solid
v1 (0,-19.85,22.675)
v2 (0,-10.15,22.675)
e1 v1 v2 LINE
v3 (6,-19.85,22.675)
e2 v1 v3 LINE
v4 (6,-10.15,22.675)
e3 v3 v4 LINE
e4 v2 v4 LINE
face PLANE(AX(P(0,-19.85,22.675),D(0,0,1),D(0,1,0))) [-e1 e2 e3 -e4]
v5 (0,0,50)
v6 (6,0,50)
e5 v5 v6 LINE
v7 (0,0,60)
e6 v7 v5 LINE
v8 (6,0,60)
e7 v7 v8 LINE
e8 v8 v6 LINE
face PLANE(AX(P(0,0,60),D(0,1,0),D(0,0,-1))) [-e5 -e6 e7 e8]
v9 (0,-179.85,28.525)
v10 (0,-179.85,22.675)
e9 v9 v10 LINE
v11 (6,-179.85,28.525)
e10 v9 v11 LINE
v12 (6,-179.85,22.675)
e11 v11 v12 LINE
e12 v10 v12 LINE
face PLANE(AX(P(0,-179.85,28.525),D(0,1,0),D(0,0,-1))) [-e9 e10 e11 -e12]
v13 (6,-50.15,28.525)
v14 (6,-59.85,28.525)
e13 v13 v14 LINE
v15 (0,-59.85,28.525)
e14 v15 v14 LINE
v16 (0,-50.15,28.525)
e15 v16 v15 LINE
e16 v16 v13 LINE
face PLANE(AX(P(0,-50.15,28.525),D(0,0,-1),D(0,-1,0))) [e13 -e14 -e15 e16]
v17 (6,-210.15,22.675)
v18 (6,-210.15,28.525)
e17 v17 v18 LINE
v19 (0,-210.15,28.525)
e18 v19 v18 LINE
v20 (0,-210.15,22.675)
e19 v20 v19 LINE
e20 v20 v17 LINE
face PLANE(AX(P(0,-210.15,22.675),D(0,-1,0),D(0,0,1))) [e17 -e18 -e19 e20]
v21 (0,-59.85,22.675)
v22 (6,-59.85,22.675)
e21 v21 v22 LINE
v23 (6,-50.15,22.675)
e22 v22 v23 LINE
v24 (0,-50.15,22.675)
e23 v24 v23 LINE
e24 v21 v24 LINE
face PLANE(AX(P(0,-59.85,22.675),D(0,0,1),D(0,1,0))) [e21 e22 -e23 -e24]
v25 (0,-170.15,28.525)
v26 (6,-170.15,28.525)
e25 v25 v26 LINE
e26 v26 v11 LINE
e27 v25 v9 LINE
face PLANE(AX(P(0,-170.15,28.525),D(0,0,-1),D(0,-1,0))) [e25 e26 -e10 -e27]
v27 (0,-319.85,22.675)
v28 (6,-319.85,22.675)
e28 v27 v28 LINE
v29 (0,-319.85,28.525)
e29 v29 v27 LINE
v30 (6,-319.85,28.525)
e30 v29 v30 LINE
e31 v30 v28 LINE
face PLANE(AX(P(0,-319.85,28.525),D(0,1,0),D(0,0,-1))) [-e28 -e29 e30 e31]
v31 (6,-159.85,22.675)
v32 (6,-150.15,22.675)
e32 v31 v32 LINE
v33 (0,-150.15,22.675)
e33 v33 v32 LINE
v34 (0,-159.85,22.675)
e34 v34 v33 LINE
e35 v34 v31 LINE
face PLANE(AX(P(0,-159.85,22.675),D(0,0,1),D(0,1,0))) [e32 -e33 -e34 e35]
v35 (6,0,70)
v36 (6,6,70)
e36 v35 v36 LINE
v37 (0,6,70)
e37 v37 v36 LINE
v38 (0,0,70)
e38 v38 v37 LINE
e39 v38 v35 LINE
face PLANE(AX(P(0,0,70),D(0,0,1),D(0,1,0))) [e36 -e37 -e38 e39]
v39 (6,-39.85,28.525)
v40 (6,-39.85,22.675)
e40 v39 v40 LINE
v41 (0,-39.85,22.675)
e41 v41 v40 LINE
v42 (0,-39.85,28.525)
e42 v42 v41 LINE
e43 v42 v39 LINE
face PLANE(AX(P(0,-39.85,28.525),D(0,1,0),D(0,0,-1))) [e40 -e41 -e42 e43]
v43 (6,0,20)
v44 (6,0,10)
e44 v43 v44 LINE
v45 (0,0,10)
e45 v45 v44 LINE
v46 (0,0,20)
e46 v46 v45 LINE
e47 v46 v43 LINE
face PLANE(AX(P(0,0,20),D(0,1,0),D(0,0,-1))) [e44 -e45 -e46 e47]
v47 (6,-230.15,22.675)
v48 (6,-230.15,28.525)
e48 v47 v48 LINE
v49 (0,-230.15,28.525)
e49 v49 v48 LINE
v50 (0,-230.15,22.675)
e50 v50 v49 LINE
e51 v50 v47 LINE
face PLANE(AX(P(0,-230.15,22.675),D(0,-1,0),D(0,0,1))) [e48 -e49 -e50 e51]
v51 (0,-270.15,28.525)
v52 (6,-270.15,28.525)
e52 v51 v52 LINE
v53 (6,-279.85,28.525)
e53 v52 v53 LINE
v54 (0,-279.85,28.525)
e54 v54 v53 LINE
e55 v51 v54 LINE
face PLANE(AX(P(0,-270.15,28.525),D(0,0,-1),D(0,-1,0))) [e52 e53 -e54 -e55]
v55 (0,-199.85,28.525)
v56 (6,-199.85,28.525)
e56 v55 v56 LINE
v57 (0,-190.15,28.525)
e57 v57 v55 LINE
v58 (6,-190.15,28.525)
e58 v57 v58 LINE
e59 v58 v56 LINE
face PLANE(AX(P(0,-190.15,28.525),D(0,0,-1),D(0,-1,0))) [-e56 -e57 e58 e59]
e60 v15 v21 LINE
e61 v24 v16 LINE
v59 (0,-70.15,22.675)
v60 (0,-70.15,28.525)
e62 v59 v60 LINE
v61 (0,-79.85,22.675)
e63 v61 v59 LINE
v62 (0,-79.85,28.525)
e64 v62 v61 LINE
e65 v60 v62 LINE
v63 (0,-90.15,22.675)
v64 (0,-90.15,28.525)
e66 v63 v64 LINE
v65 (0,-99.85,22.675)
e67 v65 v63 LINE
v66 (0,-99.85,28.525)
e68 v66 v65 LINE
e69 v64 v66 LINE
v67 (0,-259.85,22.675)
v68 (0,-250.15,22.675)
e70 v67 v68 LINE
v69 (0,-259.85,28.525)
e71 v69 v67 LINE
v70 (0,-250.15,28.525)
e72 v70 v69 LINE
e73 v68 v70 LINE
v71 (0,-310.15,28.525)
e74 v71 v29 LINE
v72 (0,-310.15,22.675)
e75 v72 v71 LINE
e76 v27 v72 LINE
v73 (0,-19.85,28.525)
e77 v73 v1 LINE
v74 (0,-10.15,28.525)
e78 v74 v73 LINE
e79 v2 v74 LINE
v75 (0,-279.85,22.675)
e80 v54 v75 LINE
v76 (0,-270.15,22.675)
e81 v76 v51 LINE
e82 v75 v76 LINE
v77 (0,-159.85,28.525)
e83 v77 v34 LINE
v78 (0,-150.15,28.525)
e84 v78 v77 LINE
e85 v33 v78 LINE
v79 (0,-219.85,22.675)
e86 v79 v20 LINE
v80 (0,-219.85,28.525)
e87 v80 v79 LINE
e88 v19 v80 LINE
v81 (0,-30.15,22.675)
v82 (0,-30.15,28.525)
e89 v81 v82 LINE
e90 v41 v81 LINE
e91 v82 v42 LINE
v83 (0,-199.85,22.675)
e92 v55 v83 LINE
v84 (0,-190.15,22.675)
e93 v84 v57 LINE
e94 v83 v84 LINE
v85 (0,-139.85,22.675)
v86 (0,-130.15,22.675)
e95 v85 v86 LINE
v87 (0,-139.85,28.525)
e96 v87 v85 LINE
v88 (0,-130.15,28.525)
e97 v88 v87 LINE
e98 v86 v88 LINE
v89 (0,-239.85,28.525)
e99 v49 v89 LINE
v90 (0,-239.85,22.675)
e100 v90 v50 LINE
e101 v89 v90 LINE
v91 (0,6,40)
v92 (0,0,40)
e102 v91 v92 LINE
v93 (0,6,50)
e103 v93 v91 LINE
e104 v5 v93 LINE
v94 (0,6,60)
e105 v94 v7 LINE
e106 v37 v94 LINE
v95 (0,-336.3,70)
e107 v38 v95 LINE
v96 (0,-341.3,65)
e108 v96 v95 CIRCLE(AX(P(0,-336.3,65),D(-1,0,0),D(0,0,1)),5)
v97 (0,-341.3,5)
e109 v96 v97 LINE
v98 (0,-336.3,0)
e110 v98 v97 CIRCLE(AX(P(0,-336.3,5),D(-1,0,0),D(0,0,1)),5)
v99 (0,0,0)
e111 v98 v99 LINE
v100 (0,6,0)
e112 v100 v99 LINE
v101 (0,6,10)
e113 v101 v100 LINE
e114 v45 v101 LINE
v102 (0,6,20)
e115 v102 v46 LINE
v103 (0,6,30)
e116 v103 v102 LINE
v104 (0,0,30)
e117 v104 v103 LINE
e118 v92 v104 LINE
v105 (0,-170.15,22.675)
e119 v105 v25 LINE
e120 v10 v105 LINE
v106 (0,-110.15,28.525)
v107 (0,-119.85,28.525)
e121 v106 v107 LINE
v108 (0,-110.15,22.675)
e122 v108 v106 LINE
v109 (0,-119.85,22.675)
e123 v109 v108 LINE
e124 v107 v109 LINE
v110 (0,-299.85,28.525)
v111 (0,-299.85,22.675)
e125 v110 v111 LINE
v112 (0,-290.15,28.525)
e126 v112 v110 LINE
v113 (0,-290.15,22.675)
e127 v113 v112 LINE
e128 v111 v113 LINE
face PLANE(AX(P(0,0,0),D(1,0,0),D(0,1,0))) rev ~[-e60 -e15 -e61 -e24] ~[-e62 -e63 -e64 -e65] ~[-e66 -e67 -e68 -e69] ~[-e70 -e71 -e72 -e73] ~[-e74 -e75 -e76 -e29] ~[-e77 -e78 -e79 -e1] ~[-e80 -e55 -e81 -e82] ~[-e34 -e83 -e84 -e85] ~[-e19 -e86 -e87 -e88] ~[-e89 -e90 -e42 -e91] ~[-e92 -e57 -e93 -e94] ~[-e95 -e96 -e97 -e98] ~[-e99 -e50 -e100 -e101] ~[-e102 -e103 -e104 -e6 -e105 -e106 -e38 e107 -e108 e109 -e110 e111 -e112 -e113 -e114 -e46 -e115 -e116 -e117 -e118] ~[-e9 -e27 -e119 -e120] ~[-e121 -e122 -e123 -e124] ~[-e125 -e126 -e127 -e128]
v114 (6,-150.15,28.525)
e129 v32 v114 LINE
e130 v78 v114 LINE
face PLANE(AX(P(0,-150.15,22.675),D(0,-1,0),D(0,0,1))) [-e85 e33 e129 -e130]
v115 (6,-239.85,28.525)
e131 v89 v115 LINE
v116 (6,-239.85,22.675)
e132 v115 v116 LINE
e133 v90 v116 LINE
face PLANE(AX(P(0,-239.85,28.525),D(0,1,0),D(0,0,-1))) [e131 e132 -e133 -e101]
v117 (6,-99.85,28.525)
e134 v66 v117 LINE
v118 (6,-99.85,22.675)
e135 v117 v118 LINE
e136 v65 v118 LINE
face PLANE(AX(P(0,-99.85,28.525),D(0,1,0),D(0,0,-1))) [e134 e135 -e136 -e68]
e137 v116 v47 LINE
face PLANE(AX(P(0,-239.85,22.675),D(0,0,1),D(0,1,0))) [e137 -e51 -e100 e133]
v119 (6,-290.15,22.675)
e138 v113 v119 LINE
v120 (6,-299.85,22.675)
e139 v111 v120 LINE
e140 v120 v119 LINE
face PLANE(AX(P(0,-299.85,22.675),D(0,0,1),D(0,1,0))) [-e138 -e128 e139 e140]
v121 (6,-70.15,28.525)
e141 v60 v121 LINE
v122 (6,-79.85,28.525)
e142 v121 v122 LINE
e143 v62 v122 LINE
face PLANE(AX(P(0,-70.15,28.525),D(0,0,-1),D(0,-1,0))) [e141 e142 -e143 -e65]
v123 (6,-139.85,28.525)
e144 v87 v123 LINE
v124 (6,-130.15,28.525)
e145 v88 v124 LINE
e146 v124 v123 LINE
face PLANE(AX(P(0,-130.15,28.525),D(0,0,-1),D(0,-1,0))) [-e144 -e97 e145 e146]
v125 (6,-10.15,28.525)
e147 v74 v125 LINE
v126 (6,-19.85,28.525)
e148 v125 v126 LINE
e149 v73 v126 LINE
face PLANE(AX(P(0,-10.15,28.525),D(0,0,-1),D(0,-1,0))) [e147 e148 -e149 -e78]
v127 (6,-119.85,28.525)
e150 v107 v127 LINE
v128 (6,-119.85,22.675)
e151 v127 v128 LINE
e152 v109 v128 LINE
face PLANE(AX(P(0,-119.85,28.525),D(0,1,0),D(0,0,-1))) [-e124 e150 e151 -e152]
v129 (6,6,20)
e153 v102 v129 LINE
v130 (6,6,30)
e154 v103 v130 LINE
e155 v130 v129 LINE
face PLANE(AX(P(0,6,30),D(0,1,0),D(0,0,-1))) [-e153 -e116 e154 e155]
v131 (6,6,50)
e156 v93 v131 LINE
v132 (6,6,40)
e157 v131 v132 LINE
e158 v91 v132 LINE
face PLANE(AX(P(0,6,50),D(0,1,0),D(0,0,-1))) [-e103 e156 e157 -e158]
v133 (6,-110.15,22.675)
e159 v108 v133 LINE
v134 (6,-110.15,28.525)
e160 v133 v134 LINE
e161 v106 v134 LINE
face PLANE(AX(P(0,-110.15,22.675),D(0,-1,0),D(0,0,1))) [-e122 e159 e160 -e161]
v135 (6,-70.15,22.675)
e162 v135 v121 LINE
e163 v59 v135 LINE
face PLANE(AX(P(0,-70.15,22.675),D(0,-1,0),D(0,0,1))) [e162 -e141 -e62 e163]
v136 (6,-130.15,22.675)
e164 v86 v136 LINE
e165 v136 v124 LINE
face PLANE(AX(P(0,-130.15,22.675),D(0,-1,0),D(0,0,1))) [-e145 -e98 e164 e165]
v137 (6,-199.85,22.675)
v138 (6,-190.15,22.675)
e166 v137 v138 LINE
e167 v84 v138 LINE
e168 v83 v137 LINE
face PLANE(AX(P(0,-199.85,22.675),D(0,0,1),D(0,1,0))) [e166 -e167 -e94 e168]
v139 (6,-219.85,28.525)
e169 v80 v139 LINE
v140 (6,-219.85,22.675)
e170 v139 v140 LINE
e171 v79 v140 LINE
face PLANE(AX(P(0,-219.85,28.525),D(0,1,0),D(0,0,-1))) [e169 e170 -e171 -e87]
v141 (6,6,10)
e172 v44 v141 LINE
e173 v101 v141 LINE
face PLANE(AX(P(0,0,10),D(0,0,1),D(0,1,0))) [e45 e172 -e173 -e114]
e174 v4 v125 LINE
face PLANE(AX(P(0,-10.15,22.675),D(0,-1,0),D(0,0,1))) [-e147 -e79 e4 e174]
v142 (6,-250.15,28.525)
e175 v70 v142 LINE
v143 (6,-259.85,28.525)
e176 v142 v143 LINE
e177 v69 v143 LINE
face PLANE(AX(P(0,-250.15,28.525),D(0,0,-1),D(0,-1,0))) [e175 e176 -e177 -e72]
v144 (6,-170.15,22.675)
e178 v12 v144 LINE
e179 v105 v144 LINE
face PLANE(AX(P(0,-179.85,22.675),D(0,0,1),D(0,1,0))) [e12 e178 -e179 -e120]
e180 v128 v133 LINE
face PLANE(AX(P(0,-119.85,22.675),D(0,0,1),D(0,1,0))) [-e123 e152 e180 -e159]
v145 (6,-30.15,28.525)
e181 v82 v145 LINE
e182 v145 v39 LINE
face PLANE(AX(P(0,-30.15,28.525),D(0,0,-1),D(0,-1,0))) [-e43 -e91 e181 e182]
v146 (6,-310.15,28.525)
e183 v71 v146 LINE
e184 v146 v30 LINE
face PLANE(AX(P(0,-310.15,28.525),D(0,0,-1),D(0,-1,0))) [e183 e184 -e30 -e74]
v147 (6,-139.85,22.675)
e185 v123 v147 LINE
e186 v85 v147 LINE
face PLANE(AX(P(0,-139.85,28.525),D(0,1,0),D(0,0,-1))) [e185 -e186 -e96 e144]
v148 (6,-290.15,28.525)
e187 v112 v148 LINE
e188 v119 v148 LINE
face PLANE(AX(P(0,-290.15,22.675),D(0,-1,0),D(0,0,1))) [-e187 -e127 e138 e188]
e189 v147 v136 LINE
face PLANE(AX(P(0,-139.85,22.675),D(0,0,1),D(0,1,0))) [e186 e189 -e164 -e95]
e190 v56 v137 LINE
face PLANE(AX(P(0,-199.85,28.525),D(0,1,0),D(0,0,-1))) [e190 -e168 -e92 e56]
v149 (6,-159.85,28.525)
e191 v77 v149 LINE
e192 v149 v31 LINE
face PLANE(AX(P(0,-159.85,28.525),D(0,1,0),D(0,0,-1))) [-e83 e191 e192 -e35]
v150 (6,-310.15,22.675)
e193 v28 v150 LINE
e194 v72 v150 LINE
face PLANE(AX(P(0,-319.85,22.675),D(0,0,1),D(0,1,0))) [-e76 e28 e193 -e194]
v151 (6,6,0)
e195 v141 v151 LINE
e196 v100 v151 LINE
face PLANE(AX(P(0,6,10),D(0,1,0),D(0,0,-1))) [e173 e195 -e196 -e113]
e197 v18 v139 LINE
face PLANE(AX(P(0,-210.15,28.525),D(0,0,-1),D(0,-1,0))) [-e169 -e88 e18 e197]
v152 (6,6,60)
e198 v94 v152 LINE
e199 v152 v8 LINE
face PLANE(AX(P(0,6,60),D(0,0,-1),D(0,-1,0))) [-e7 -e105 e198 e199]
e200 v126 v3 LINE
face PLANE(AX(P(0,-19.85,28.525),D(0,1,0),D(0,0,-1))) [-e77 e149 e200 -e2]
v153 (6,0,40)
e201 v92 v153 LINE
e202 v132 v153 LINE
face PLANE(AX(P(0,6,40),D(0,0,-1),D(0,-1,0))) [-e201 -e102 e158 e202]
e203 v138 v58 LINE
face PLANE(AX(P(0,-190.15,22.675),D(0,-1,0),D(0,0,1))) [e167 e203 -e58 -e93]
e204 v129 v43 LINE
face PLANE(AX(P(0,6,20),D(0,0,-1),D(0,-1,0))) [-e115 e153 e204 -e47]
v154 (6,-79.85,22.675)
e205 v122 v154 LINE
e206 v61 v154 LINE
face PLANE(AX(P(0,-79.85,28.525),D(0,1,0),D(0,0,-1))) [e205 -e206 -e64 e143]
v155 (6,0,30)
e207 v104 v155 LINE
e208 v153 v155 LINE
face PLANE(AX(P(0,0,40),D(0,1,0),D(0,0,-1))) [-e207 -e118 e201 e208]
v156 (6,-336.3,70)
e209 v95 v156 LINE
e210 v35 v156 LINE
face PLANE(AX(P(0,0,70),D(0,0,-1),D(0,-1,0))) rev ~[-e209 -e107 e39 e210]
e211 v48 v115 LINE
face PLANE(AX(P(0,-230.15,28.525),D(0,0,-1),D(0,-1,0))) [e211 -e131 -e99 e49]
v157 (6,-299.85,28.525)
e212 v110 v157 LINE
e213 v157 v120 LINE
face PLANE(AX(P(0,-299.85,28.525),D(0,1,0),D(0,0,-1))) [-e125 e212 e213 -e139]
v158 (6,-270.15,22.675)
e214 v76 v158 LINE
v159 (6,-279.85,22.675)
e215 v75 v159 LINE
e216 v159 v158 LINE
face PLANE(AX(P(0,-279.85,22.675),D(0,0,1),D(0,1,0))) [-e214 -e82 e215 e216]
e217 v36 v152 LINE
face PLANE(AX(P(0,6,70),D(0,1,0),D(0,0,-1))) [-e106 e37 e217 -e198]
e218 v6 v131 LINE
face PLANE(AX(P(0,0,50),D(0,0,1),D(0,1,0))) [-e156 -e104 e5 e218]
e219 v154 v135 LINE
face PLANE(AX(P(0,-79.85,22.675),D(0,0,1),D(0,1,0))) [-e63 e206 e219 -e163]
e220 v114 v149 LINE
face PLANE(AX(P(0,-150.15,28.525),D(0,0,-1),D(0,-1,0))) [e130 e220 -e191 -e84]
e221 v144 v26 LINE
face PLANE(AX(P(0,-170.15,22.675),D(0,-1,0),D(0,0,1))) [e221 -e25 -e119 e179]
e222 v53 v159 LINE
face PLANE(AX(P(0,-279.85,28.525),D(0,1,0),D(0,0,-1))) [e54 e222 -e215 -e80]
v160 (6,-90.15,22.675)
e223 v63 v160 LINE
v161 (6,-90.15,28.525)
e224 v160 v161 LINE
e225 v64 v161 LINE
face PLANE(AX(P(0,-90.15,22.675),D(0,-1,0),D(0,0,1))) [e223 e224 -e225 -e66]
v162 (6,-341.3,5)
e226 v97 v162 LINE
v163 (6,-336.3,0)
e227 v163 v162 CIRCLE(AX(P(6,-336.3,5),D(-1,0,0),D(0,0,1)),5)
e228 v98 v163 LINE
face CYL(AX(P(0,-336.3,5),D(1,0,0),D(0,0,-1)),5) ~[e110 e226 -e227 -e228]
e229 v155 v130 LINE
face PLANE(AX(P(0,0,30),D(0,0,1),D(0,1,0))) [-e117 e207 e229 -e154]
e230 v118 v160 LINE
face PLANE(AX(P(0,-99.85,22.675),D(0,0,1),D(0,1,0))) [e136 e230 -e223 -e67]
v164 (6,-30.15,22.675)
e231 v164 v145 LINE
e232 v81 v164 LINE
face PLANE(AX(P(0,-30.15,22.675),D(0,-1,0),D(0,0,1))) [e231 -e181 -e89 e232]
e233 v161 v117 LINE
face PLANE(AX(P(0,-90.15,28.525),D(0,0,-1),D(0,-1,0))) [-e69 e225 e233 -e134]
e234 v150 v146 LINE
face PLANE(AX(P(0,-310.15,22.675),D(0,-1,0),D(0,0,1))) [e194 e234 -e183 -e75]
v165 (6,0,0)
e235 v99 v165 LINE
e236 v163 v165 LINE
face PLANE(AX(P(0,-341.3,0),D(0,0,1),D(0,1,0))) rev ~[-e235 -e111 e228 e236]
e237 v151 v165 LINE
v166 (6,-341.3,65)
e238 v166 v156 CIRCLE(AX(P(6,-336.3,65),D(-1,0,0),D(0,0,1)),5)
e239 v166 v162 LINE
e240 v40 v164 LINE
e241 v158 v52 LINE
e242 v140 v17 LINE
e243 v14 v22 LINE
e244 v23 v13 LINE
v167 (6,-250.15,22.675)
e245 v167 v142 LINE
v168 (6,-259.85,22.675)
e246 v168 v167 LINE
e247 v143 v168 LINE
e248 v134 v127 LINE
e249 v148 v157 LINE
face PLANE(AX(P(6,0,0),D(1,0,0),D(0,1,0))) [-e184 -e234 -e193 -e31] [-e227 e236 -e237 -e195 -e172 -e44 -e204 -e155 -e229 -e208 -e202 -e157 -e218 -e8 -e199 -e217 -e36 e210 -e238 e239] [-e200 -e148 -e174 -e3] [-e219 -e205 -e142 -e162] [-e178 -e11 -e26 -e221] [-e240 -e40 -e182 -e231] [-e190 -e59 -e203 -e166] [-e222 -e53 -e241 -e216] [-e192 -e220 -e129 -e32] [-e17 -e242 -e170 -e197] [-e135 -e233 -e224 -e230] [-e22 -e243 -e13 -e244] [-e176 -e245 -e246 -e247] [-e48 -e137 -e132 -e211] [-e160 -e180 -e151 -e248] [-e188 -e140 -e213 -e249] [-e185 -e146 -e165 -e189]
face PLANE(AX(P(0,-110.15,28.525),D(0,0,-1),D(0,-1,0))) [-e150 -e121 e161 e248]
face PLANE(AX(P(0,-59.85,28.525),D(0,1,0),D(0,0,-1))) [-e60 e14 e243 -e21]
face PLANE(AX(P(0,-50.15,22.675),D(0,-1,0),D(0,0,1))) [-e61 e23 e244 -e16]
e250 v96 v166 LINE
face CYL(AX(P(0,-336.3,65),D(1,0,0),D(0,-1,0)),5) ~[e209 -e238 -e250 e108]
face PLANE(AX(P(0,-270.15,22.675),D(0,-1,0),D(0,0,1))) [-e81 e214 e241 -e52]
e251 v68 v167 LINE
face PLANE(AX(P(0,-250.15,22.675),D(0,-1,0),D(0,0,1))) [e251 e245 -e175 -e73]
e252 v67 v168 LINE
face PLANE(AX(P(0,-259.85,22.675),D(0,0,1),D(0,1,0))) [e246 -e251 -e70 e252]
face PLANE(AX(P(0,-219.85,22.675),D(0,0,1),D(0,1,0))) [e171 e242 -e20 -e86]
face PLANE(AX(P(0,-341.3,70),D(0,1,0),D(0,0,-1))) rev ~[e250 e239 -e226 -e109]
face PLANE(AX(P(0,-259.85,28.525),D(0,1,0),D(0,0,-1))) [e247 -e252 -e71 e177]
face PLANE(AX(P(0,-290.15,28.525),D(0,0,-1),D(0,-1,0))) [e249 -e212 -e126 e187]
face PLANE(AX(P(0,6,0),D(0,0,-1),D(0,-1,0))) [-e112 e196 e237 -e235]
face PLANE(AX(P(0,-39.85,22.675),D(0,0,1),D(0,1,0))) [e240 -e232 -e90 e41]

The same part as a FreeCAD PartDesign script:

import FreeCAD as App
import Part
import Sketcher
from FreeCAD import Vector


def edges_at(feature, points):
    """Names of the edges that pass closest to the given points."""
    edges = feature.Shape.Edges
    near = lambda p: min(range(len(edges)), key=lambda i: edges[i].distToShape(Part.Vertex(*p))[0])
    return sorted({f"Edge{near(p) + 1}" for p in points})

doc = App.newDocument("Part")
body = doc.addObject("PartDesign::Body", "Body")

sketch1 = body.newObject("Sketcher::SketchObject", "Sketch")
sketch1.AttachmentSupport = (doc.getObject("YZ_Plane"), [""])
sketch1.MapMode = "FlatFace"
sketch1.addGeometry(Part.LineSegment(Vector(6, 70, 0), Vector(-341.3, 70, 0)), False)
sketch1.addGeometry(Part.LineSegment(Vector(-341.3, 70, 0), Vector(-341.3, 0, 0)), False)
sketch1.addGeometry(Part.LineSegment(Vector(-341.3, 0, 0), Vector(6, 0, 0)), False)
sketch1.addGeometry(Part.LineSegment(Vector(6, 0, 0), Vector(6, 10, 0)), False)
sketch1.addGeometry(Part.LineSegment(Vector(6, 10, 0), Vector(0, 10, 0)), False)
sketch1.addGeometry(Part.LineSegment(Vector(0, 10, 0), Vector(0, 20, 0)), False)
sketch1.addGeometry(Part.LineSegment(Vector(0, 20, 0), Vector(6, 20, 0)), False)
sketch1.addGeometry(Part.LineSegment(Vector(6, 20, 0), Vector(6, 30, 0)), False)
sketch1.addGeometry(Part.LineSegment(Vector(6, 30, 0), Vector(0, 30, 0)), False)
sketch1.addGeometry(Part.LineSegment(Vector(0, 30, 0), Vector(0, 40, 0)), False)
sketch1.addGeometry(Part.LineSegment(Vector(0, 40, 0), Vector(6, 40, 0)), False)
sketch1.addGeometry(Part.LineSegment(Vector(6, 40, 0), Vector(6, 50, 0)), False)
sketch1.addGeometry(Part.LineSegment(Vector(6, 50, 0), Vector(0, 50, 0)), False)
sketch1.addGeometry(Part.LineSegment(Vector(0, 50, 0), Vector(0, 60, 0)), False)
sketch1.addGeometry(Part.LineSegment(Vector(0, 60, 0), Vector(6, 60, 0)), False)
sketch1.addGeometry(Part.LineSegment(Vector(6, 60, 0), Vector(6, 70, 0)), False)
sketch1.addGeometry(Part.LineSegment(Vector(-310.15, 28.525, 0), Vector(-310.15, 22.675, 0)), False)
sketch1.addGeometry(Part.LineSegment(Vector(-310.15, 22.675, 0), Vector(-319.85, 22.675, 0)), False)
sketch1.addGeometry(Part.LineSegment(Vector(-319.85, 22.675, 0), Vector(-319.85, 28.525, 0)), False)
sketch1.addGeometry(Part.LineSegment(Vector(-319.85, 28.525, 0), Vector(-310.15, 28.525, 0)), False)
sketch1.addGeometry(Part.LineSegment(Vector(-290.15, 28.525, 0), Vector(-290.15, 22.675, 0)), False)
sketch1.addGeometry(Part.LineSegment(Vector(-290.15, 22.675, 0), Vector(-299.85, 22.675, 0)), False)
sketch1.addGeometry(Part.LineSegment(Vector(-299.85, 22.675, 0), Vector(-299.85, 28.525, 0)), False)
sketch1.addGeometry(Part.LineSegment(Vector(-299.85, 28.525, 0), Vector(-290.15, 28.525, 0)), False)
sketch1.addGeometry(Part.LineSegment(Vector(-270.15, 28.525, 0), Vector(-270.15, 22.675, 0)), False)
sketch1.addGeometry(Part.LineSegment(Vector(-270.15, 22.675, 0), Vector(-279.85, 22.675, 0)), False)
sketch1.addGeometry(Part.LineSegment(Vector(-279.85, 22.675, 0), Vector(-279.85, 28.525, 0)), False)
sketch1.addGeometry(Part.LineSegment(Vector(-279.85, 28.525, 0), Vector(-270.15, 28.525, 0)), False)
sketch1.addGeometry(Part.LineSegment(Vector(-250.15, 28.525, 0), Vector(-250.15, 22.675, 0)), False)
sketch1.addGeometry(Part.LineSegment(Vector(-250.15, 22.675, 0), Vector(-259.85, 22.675, 0)), False)
sketch1.addGeometry(Part.LineSegment(Vector(-259.85, 22.675, 0), Vector(-259.85, 28.525, 0)), False)
sketch1.addGeometry(Part.LineSegment(Vector(-259.85, 28.525, 0), Vector(-250.15, 28.525, 0)), False)
sketch1.addGeometry(Part.LineSegment(Vector(-230.15, 28.525, 0), Vector(-230.15, 22.675, 0)), False)
sketch1.addGeometry(Part.LineSegment(Vector(-230.15, 22.675, 0), Vector(-239.85, 22.675, 0)), False)
sketch1.addGeometry(Part.LineSegment(Vector(-239.85, 22.675, 0), Vector(-239.85, 28.525, 0)), False)
sketch1.addGeometry(Part.LineSegment(Vector(-239.85, 28.525, 0), Vector(-230.15, 28.525, 0)), False)
sketch1.addGeometry(Part.LineSegment(Vector(-210.15, 28.525, 0), Vector(-210.15, 22.675, 0)), False)
sketch1.addGeometry(Part.LineSegment(Vector(-210.15, 22.675, 0), Vector(-219.85, 22.675, 0)), False)
sketch1.addGeometry(Part.LineSegment(Vector(-219.85, 22.675, 0), Vector(-219.85, 28.525, 0)), False)
sketch1.addGeometry(Part.LineSegment(Vector(-219.85, 28.525, 0), Vector(-210.15, 28.525, 0)), False)
sketch1.addGeometry(Part.LineSegment(Vector(-190.15, 28.525, 0), Vector(-190.15, 22.675, 0)), False)
sketch1.addGeometry(Part.LineSegment(Vector(-190.15, 22.675, 0), Vector(-199.85, 22.675, 0)), False)
sketch1.addGeometry(Part.LineSegment(Vector(-199.85, 22.675, 0), Vector(-199.85, 28.525, 0)), False)
sketch1.addGeometry(Part.LineSegment(Vector(-199.85, 28.525, 0), Vector(-190.15, 28.525, 0)), False)
sketch1.addGeometry(Part.LineSegment(Vector(-170.15, 28.525, 0), Vector(-170.15, 22.675, 0)), False)
sketch1.addGeometry(Part.LineSegment(Vector(-170.15, 22.675, 0), Vector(-179.85, 22.675, 0)), False)
sketch1.addGeometry(Part.LineSegment(Vector(-179.85, 22.675, 0), Vector(-179.85, 28.525, 0)), False)
sketch1.addGeometry(Part.LineSegment(Vector(-179.85, 28.525, 0), Vector(-170.15, 28.525, 0)), False)
sketch1.addGeometry(Part.LineSegment(Vector(-150.15, 28.525, 0), Vector(-150.15, 22.675, 0)), False)
sketch1.addGeometry(Part.LineSegment(Vector(-150.15, 22.675, 0), Vector(-159.85, 22.675, 0)), False)
sketch1.addGeometry(Part.LineSegment(Vector(-159.85, 22.675, 0), Vector(-159.85, 28.525, 0)), False)
sketch1.addGeometry(Part.LineSegment(Vector(-159.85, 28.525, 0), Vector(-150.15, 28.525, 0)), False)
sketch1.addGeometry(Part.LineSegment(Vector(-130.15, 28.525, 0), Vector(-130.15, 22.675, 0)), False)
sketch1.addGeometry(Part.LineSegment(Vector(-130.15, 22.675, 0), Vector(-139.85, 22.675, 0)), False)
sketch1.addGeometry(Part.LineSegment(Vector(-139.85, 22.675, 0), Vector(-139.85, 28.525, 0)), False)
sketch1.addGeometry(Part.LineSegment(Vector(-139.85, 28.525, 0), Vector(-130.15, 28.525, 0)), False)
sketch1.addGeometry(Part.LineSegment(Vector(-110.15, 28.525, 0), Vector(-110.15, 22.675, 0)), False)
sketch1.addGeometry(Part.LineSegment(Vector(-110.15, 22.675, 0), Vector(-119.85, 22.675, 0)), False)
sketch1.addGeometry(Part.LineSegment(Vector(-119.85, 22.675, 0), Vector(-119.85, 28.525, 0)), False)
sketch1.addGeometry(Part.LineSegment(Vector(-119.85, 28.525, 0), Vector(-110.15, 28.525, 0)), False)
sketch1.addGeometry(Part.LineSegment(Vector(-90.15, 28.525, 0), Vector(-90.15, 22.675, 0)), False)
sketch1.addGeometry(Part.LineSegment(Vector(-90.15, 22.675, 0), Vector(-99.85, 22.675, 0)), False)
sketch1.addGeometry(Part.LineSegment(Vector(-99.85, 22.675, 0), Vector(-99.85, 28.525, 0)), False)
sketch1.addGeometry(Part.LineSegment(Vector(-99.85, 28.525, 0), Vector(-90.15, 28.525, 0)), False)
sketch1.addGeometry(Part.LineSegment(Vector(-70.15, 28.525, 0), Vector(-70.15, 22.675, 0)), False)
sketch1.addGeometry(Part.LineSegment(Vector(-70.15, 22.675, 0), Vector(-79.85, 22.675, 0)), False)
sketch1.addGeometry(Part.LineSegment(Vector(-79.85, 22.675, 0), Vector(-79.85, 28.525, 0)), False)
sketch1.addGeometry(Part.LineSegment(Vector(-79.85, 28.525, 0), Vector(-70.15, 28.525, 0)), False)
sketch1.addGeometry(Part.LineSegment(Vector(-50.15, 28.525, 0), Vector(-50.15, 22.675, 0)), False)
sketch1.addGeometry(Part.LineSegment(Vector(-50.15, 22.675, 0), Vector(-59.85, 22.675, 0)), False)
sketch1.addGeometry(Part.LineSegment(Vector(-59.85, 22.675, 0), Vector(-59.85, 28.525, 0)), False)
sketch1.addGeometry(Part.LineSegment(Vector(-59.85, 28.525, 0), Vector(-50.15, 28.525, 0)), False)
sketch1.addGeometry(Part.LineSegment(Vector(-30.15, 28.525, 0), Vector(-30.15, 22.675, 0)), False)
sketch1.addGeometry(Part.LineSegment(Vector(-30.15, 22.675, 0), Vector(-39.85, 22.675, 0)), False)
sketch1.addGeometry(Part.LineSegment(Vector(-39.85, 22.675, 0), Vector(-39.85, 28.525, 0)), False)
sketch1.addGeometry(Part.LineSegment(Vector(-39.85, 28.525, 0), Vector(-30.15, 28.525, 0)), False)
sketch1.addGeometry(Part.LineSegment(Vector(-19.85, 28.525, 0), Vector(-10.15, 28.525, 0)), False)
sketch1.addGeometry(Part.LineSegment(Vector(-10.15, 28.525, 0), Vector(-10.15, 22.675, 0)), False)
sketch1.addGeometry(Part.LineSegment(Vector(-10.15, 22.675, 0), Vector(-19.85, 22.675, 0)), False)
sketch1.addGeometry(Part.LineSegment(Vector(-19.85, 22.675, 0), Vector(-19.85, 28.525, 0)), False)
sketch1.addConstraint(Sketcher.Constraint("Coincident", 0, 2, 1, 1))
sketch1.addConstraint(Sketcher.Constraint("Coincident", 1, 2, 2, 1))
sketch1.addConstraint(Sketcher.Constraint("Coincident", 2, 2, 3, 1))
sketch1.addConstraint(Sketcher.Constraint("Coincident", 3, 2, 4, 1))
sketch1.addConstraint(Sketcher.Constraint("Coincident", 4, 2, 5, 1))
sketch1.addConstraint(Sketcher.Constraint("Coincident", 5, 2, 6, 1))
sketch1.addConstraint(Sketcher.Constraint("Coincident", 6, 2, 7, 1))
sketch1.addConstraint(Sketcher.Constraint("Coincident", 7, 2, 8, 1))
sketch1.addConstraint(Sketcher.Constraint("Coincident", 8, 2, 9, 1))
sketch1.addConstraint(Sketcher.Constraint("Coincident", 9, 2, 10, 1))
sketch1.addConstraint(Sketcher.Constraint("Coincident", 10, 2, 11, 1))
sketch1.addConstraint(Sketcher.Constraint("Coincident", 11, 2, 12, 1))
sketch1.addConstraint(Sketcher.Constraint("Coincident", 12, 2, 13, 1))
sketch1.addConstraint(Sketcher.Constraint("Coincident", 13, 2, 14, 1))
sketch1.addConstraint(Sketcher.Constraint("Coincident", 14, 2, 15, 1))
sketch1.addConstraint(Sketcher.Constraint("Coincident", 15, 2, 0, 1))
sketch1.addConstraint(Sketcher.Constraint("Coincident", 16, 2, 17, 1))
sketch1.addConstraint(Sketcher.Constraint("Coincident", 17, 2, 18, 1))
sketch1.addConstraint(Sketcher.Constraint("Coincident", 18, 2, 19, 1))
sketch1.addConstraint(Sketcher.Constraint("Coincident", 19, 2, 16, 1))
sketch1.addConstraint(Sketcher.Constraint("Coincident", 20, 2, 21, 1))
sketch1.addConstraint(Sketcher.Constraint("Coincident", 21, 2, 22, 1))
sketch1.addConstraint(Sketcher.Constraint("Coincident", 22, 2, 23, 1))
sketch1.addConstraint(Sketcher.Constraint("Coincident", 23, 2, 20, 1))
sketch1.addConstraint(Sketcher.Constraint("Coincident", 24, 2, 25, 1))
sketch1.addConstraint(Sketcher.Constraint("Coincident", 25, 2, 26, 1))
sketch1.addConstraint(Sketcher.Constraint("Coincident", 26, 2, 27, 1))
sketch1.addConstraint(Sketcher.Constraint("Coincident", 27, 2, 24, 1))
sketch1.addConstraint(Sketcher.Constraint("Coincident", 28, 2, 29, 1))
sketch1.addConstraint(Sketcher.Constraint("Coincident", 29, 2, 30, 1))
sketch1.addConstraint(Sketcher.Constraint("Coincident", 30, 2, 31, 1))
sketch1.addConstraint(Sketcher.Constraint("Coincident", 31, 2, 28, 1))
sketch1.addConstraint(Sketcher.Constraint("Coincident", 32, 2, 33, 1))
sketch1.addConstraint(Sketcher.Constraint("Coincident", 33, 2, 34, 1))
sketch1.addConstraint(Sketcher.Constraint("Coincident", 34, 2, 35, 1))
sketch1.addConstraint(Sketcher.Constraint("Coincident", 35, 2, 32, 1))
sketch1.addConstraint(Sketcher.Constraint("Coincident", 36, 2, 37, 1))
sketch1.addConstraint(Sketcher.Constraint("Coincident", 37, 2, 38, 1))
sketch1.addConstraint(Sketcher.Constraint("Coincident", 38, 2, 39, 1))
sketch1.addConstraint(Sketcher.Constraint("Coincident", 39, 2, 36, 1))
sketch1.addConstraint(Sketcher.Constraint("Coincident", 40, 2, 41, 1))
sketch1.addConstraint(Sketcher.Constraint("Coincident", 41, 2, 42, 1))
sketch1.addConstraint(Sketcher.Constraint("Coincident", 42, 2, 43, 1))
sketch1.addConstraint(Sketcher.Constraint("Coincident", 43, 2, 40, 1))
sketch1.addConstraint(Sketcher.Constraint("Coincident", 44, 2, 45, 1))
sketch1.addConstraint(Sketcher.Constraint("Coincident", 45, 2, 46, 1))
sketch1.addConstraint(Sketcher.Constraint("Coincident", 46, 2, 47, 1))
sketch1.addConstraint(Sketcher.Constraint("Coincident", 47, 2, 44, 1))
sketch1.addConstraint(Sketcher.Constraint("Coincident", 48, 2, 49, 1))
sketch1.addConstraint(Sketcher.Constraint("Coincident", 49, 2, 50, 1))
sketch1.addConstraint(Sketcher.Constraint("Coincident", 50, 2, 51, 1))
sketch1.addConstraint(Sketcher.Constraint("Coincident", 51, 2, 48, 1))
sketch1.addConstraint(Sketcher.Constraint("Coincident", 52, 2, 53, 1))
sketch1.addConstraint(Sketcher.Constraint("Coincident", 53, 2, 54, 1))
sketch1.addConstraint(Sketcher.Constraint("Coincident", 54, 2, 55, 1))
sketch1.addConstraint(Sketcher.Constraint("Coincident", 55, 2, 52, 1))
sketch1.addConstraint(Sketcher.Constraint("Coincident", 56, 2, 57, 1))
sketch1.addConstraint(Sketcher.Constraint("Coincident", 57, 2, 58, 1))
sketch1.addConstraint(Sketcher.Constraint("Coincident", 58, 2, 59, 1))
sketch1.addConstraint(Sketcher.Constraint("Coincident", 59, 2, 56, 1))
sketch1.addConstraint(Sketcher.Constraint("Coincident", 60, 2, 61, 1))
sketch1.addConstraint(Sketcher.Constraint("Coincident", 61, 2, 62, 1))
sketch1.addConstraint(Sketcher.Constraint("Coincident", 62, 2, 63, 1))
sketch1.addConstraint(Sketcher.Constraint("Coincident", 63, 2, 60, 1))
sketch1.addConstraint(Sketcher.Constraint("Coincident", 64, 2, 65, 1))
sketch1.addConstraint(Sketcher.Constraint("Coincident", 65, 2, 66, 1))
sketch1.addConstraint(Sketcher.Constraint("Coincident", 66, 2, 67, 1))
sketch1.addConstraint(Sketcher.Constraint("Coincident", 67, 2, 64, 1))
sketch1.addConstraint(Sketcher.Constraint("Coincident", 68, 2, 69, 1))
sketch1.addConstraint(Sketcher.Constraint("Coincident", 69, 2, 70, 1))
sketch1.addConstraint(Sketcher.Constraint("Coincident", 70, 2, 71, 1))
sketch1.addConstraint(Sketcher.Constraint("Coincident", 71, 2, 68, 1))
sketch1.addConstraint(Sketcher.Constraint("Coincident", 72, 2, 73, 1))
sketch1.addConstraint(Sketcher.Constraint("Coincident", 73, 2, 74, 1))
sketch1.addConstraint(Sketcher.Constraint("Coincident", 74, 2, 75, 1))
sketch1.addConstraint(Sketcher.Constraint("Coincident", 75, 2, 72, 1))
sketch1.addConstraint(Sketcher.Constraint("Coincident", 76, 2, 77, 1))
sketch1.addConstraint(Sketcher.Constraint("Coincident", 77, 2, 78, 1))
sketch1.addConstraint(Sketcher.Constraint("Coincident", 78, 2, 79, 1))
sketch1.addConstraint(Sketcher.Constraint("Coincident", 79, 2, 76, 1))
sketch1.addConstraint(Sketcher.Constraint("Horizontal", 0))
sketch1.addConstraint(Sketcher.Constraint("Vertical", 1))
sketch1.addConstraint(Sketcher.Constraint("Horizontal", 2))
sketch1.addConstraint(Sketcher.Constraint("Vertical", 3))
sketch1.addConstraint(Sketcher.Constraint("Horizontal", 4))
sketch1.addConstraint(Sketcher.Constraint("Vertical", 5))
sketch1.addConstraint(Sketcher.Constraint("Horizontal", 6))
sketch1.addConstraint(Sketcher.Constraint("Vertical", 7))
sketch1.addConstraint(Sketcher.Constraint("Horizontal", 8))
sketch1.addConstraint(Sketcher.Constraint("Vertical", 9))
sketch1.addConstraint(Sketcher.Constraint("Horizontal", 10))
sketch1.addConstraint(Sketcher.Constraint("Vertical", 11))
sketch1.addConstraint(Sketcher.Constraint("Horizontal", 12))
sketch1.addConstraint(Sketcher.Constraint("Vertical", 13))
sketch1.addConstraint(Sketcher.Constraint("Horizontal", 14))
sketch1.addConstraint(Sketcher.Constraint("Vertical", 15))
sketch1.addConstraint(Sketcher.Constraint("Vertical", 16))
sketch1.addConstraint(Sketcher.Constraint("Horizontal", 17))
sketch1.addConstraint(Sketcher.Constraint("Vertical", 18))
sketch1.addConstraint(Sketcher.Constraint("Horizontal", 19))
sketch1.addConstraint(Sketcher.Constraint("Vertical", 20))
sketch1.addConstraint(Sketcher.Constraint("Horizontal", 21))
sketch1.addConstraint(Sketcher.Constraint("Vertical", 22))
sketch1.addConstraint(Sketcher.Constraint("Horizontal", 23))
sketch1.addConstraint(Sketcher.Constraint("Vertical", 24))
sketch1.addConstraint(Sketcher.Constraint("Horizontal", 25))
sketch1.addConstraint(Sketcher.Constraint("Vertical", 26))
sketch1.addConstraint(Sketcher.Constraint("Horizontal", 27))
sketch1.addConstraint(Sketcher.Constraint("Vertical", 28))
sketch1.addConstraint(Sketcher.Constraint("Horizontal", 29))
sketch1.addConstraint(Sketcher.Constraint("Vertical", 30))
sketch1.addConstraint(Sketcher.Constraint("Horizontal", 31))
sketch1.addConstraint(Sketcher.Constraint("Vertical", 32))
sketch1.addConstraint(Sketcher.Constraint("Horizontal", 33))
sketch1.addConstraint(Sketcher.Constraint("Vertical", 34))
sketch1.addConstraint(Sketcher.Constraint("Horizontal", 35))
sketch1.addConstraint(Sketcher.Constraint("Vertical", 36))
sketch1.addConstraint(Sketcher.Constraint("Horizontal", 37))
sketch1.addConstraint(Sketcher.Constraint("Vertical", 38))
sketch1.addConstraint(Sketcher.Constraint("Horizontal", 39))
sketch1.addConstraint(Sketcher.Constraint("Vertical", 40))
sketch1.addConstraint(Sketcher.Constraint("Horizontal", 41))
sketch1.addConstraint(Sketcher.Constraint("Vertical", 42))
sketch1.addConstraint(Sketcher.Constraint("Horizontal", 43))
sketch1.addConstraint(Sketcher.Constraint("Vertical", 44))
sketch1.addConstraint(Sketcher.Constraint("Horizontal", 45))
sketch1.addConstraint(Sketcher.Constraint("Vertical", 46))
sketch1.addConstraint(Sketcher.Constraint("Horizontal", 47))
sketch1.addConstraint(Sketcher.Constraint("Vertical", 48))
sketch1.addConstraint(Sketcher.Constraint("Horizontal", 49))
sketch1.addConstraint(Sketcher.Constraint("Vertical", 50))
sketch1.addConstraint(Sketcher.Constraint("Horizontal", 51))
sketch1.addConstraint(Sketcher.Constraint("Vertical", 52))
sketch1.addConstraint(Sketcher.Constraint("Horizontal", 53))
sketch1.addConstraint(Sketcher.Constraint("Vertical", 54))
sketch1.addConstraint(Sketcher.Constraint("Horizontal", 55))
sketch1.addConstraint(Sketcher.Constraint("Vertical", 56))
sketch1.addConstraint(Sketcher.Constraint("Horizontal", 57))
sketch1.addConstraint(Sketcher.Constraint("Vertical", 58))
sketch1.addConstraint(Sketcher.Constraint("Horizontal", 59))
sketch1.addConstraint(Sketcher.Constraint("Vertical", 60))
sketch1.addConstraint(Sketcher.Constraint("Horizontal", 61))
sketch1.addConstraint(Sketcher.Constraint("Vertical", 62))
sketch1.addConstraint(Sketcher.Constraint("Horizontal", 63))
sketch1.addConstraint(Sketcher.Constraint("Vertical", 64))
sketch1.addConstraint(Sketcher.Constraint("Horizontal", 65))
sketch1.addConstraint(Sketcher.Constraint("Vertical", 66))
sketch1.addConstraint(Sketcher.Constraint("Horizontal", 67))
sketch1.addConstraint(Sketcher.Constraint("Vertical", 68))
sketch1.addConstraint(Sketcher.Constraint("Horizontal", 69))
sketch1.addConstraint(Sketcher.Constraint("Vertical", 70))
sketch1.addConstraint(Sketcher.Constraint("Horizontal", 71))
sketch1.addConstraint(Sketcher.Constraint("Vertical", 72))
sketch1.addConstraint(Sketcher.Constraint("Horizontal", 73))
sketch1.addConstraint(Sketcher.Constraint("Vertical", 74))
sketch1.addConstraint(Sketcher.Constraint("Horizontal", 75))
sketch1.addConstraint(Sketcher.Constraint("Horizontal", 76))
sketch1.addConstraint(Sketcher.Constraint("Vertical", 77))
sketch1.addConstraint(Sketcher.Constraint("Horizontal", 78))
sketch1.addConstraint(Sketcher.Constraint("Vertical", 79))
sketch1.addConstraint(Sketcher.Constraint("PointOnObject", 1, 2, -1))
sketch1.addConstraint(Sketcher.Constraint("PointOnObject", 4, 2, -2))
sketch1.addConstraint(Sketcher.Constraint("PointOnObject", 8, 2, -2))
sketch1.addConstraint(Sketcher.Constraint("PointOnObject", 12, 2, -2))
sketch1.addConstraint(Sketcher.Constraint("Horizontal", 17, 2, 20, 2))
sketch1.addConstraint(Sketcher.Constraint("Horizontal", 19, 2, 22, 2))
sketch1.addConstraint(Sketcher.Constraint("Horizontal", 21, 2, 24, 2))
sketch1.addConstraint(Sketcher.Constraint("Horizontal", 23, 2, 26, 2))
sketch1.addConstraint(Sketcher.Constraint("Horizontal", 25, 2, 28, 2))
sketch1.addConstraint(Sketcher.Constraint("Horizontal", 27, 2, 30, 2))
sketch1.addConstraint(Sketcher.Constraint("Horizontal", 29, 2, 32, 2))
sketch1.addConstraint(Sketcher.Constraint("Horizontal", 31, 2, 34, 2))
sketch1.addConstraint(Sketcher.Constraint("Horizontal", 33, 2, 36, 2))
sketch1.addConstraint(Sketcher.Constraint("Horizontal", 35, 2, 38, 2))
sketch1.addConstraint(Sketcher.Constraint("Horizontal", 37, 2, 40, 2))
sketch1.addConstraint(Sketcher.Constraint("Horizontal", 39, 2, 42, 2))
sketch1.addConstraint(Sketcher.Constraint("Horizontal", 41, 2, 44, 2))
sketch1.addConstraint(Sketcher.Constraint("Horizontal", 43, 2, 46, 2))
sketch1.addConstraint(Sketcher.Constraint("Horizontal", 45, 2, 48, 2))
sketch1.addConstraint(Sketcher.Constraint("Horizontal", 47, 2, 50, 2))
sketch1.addConstraint(Sketcher.Constraint("Horizontal", 49, 2, 52, 2))
sketch1.addConstraint(Sketcher.Constraint("Horizontal", 51, 2, 54, 2))
sketch1.addConstraint(Sketcher.Constraint("Horizontal", 53, 2, 56, 2))
sketch1.addConstraint(Sketcher.Constraint("Horizontal", 55, 2, 58, 2))
sketch1.addConstraint(Sketcher.Constraint("Horizontal", 57, 2, 60, 2))
sketch1.addConstraint(Sketcher.Constraint("Horizontal", 59, 2, 62, 2))
sketch1.addConstraint(Sketcher.Constraint("Horizontal", 61, 2, 64, 2))
sketch1.addConstraint(Sketcher.Constraint("Horizontal", 63, 2, 66, 2))
sketch1.addConstraint(Sketcher.Constraint("Horizontal", 65, 2, 68, 2))
sketch1.addConstraint(Sketcher.Constraint("Horizontal", 67, 2, 70, 2))
sketch1.addConstraint(Sketcher.Constraint("Horizontal", 69, 2, 72, 2))
sketch1.addConstraint(Sketcher.Constraint("Horizontal", 71, 2, 74, 2))
sketch1.addConstraint(Sketcher.Constraint("Horizontal", 75, 2, 76, 2))
sketch1.addConstraint(Sketcher.Constraint("Horizontal", 73, 2, 77, 2))
sketch1.addConstraint(Sketcher.Constraint("Vertical", 3, 2, 6, 2))
sketch1.addConstraint(Sketcher.Constraint("Vertical", 7, 2, 10, 2))
sketch1.addConstraint(Sketcher.Constraint("Vertical", 11, 2, 14, 2))
sketch1.addConstraint(Sketcher.Constraint("Equal", 19, 21))
sketch1.addConstraint(Sketcher.Constraint("Equal", 23, 25))
sketch1.addConstraint(Sketcher.Constraint("Equal", 27, 29))
sketch1.addConstraint(Sketcher.Constraint("Equal", 31, 33))
sketch1.addConstraint(Sketcher.Constraint("Equal", 35, 37))
sketch1.addConstraint(Sketcher.Constraint("Equal", 39, 41))
sketch1.addConstraint(Sketcher.Constraint("Equal", 43, 45))
sketch1.addConstraint(Sketcher.Constraint("Equal", 47, 49))
sketch1.addConstraint(Sketcher.Constraint("Equal", 51, 53))
sketch1.addConstraint(Sketcher.Constraint("Equal", 55, 57))
sketch1.addConstraint(Sketcher.Constraint("Equal", 59, 61))
sketch1.addConstraint(Sketcher.Constraint("Equal", 63, 65))
sketch1.addConstraint(Sketcher.Constraint("Equal", 67, 69))
sketch1.addConstraint(Sketcher.Constraint("Equal", 71, 73))
sketch1.addConstraint(Sketcher.Constraint("Equal", 75, 76))
sketch1.addConstraint(Sketcher.Constraint("Equal", 3, 5))
sketch1.addConstraint(Sketcher.Constraint("Equal", 5, 7))
sketch1.addConstraint(Sketcher.Constraint("Equal", 7, 9))
sketch1.addConstraint(Sketcher.Constraint("Equal", 9, 11))
sketch1.addConstraint(Sketcher.Constraint("Equal", 11, 13))
sketch1.addConstraint(Sketcher.Constraint("Equal", 13, 15))
sketch1.addConstraint(Sketcher.Constraint("DistanceX", 4, 2, 4, 1, 6.0))
sketch1.addConstraint(Sketcher.Constraint("DistanceY", 1, 2, 1, 1, 70.0))
sketch1.addConstraint(Sketcher.Constraint("DistanceX", 17, 2, 17, 1, 9.7))
sketch1.addConstraint(Sketcher.Constraint("DistanceY", 16, 2, 16, 1, 5.85))
sketch1.addConstraint(Sketcher.Constraint("DistanceX", 0, 2, -1, 1, 341.3))
sketch1.addConstraint(Sketcher.Constraint("DistanceX", 16, 2, -1, 1, 310.15))
sketch1.addConstraint(Sketcher.Constraint("DistanceX", 20, 2, -1, 1, 290.15))
sketch1.addConstraint(Sketcher.Constraint("DistanceX", 24, 2, -1, 1, 270.15))
sketch1.addConstraint(Sketcher.Constraint("DistanceX", 28, 2, -1, 1, 250.15))
sketch1.addConstraint(Sketcher.Constraint("DistanceX", 32, 2, -1, 1, 230.15))
sketch1.addConstraint(Sketcher.Constraint("DistanceX", 36, 2, -1, 1, 210.15))
sketch1.addConstraint(Sketcher.Constraint("DistanceX", 40, 2, -1, 1, 190.15))
sketch1.addConstraint(Sketcher.Constraint("DistanceX", 44, 2, -1, 1, 170.15))
sketch1.addConstraint(Sketcher.Constraint("DistanceX", 48, 2, -1, 1, 150.15))
sketch1.addConstraint(Sketcher.Constraint("DistanceX", 52, 2, -1, 1, 130.15))
sketch1.addConstraint(Sketcher.Constraint("DistanceX", 56, 2, -1, 1, 110.15))
sketch1.addConstraint(Sketcher.Constraint("DistanceX", 60, 2, -1, 1, 90.15))
sketch1.addConstraint(Sketcher.Constraint("DistanceX", 64, 2, -1, 1, 70.15))
sketch1.addConstraint(Sketcher.Constraint("DistanceX", 68, 2, -1, 1, 50.15))
sketch1.addConstraint(Sketcher.Constraint("DistanceX", 72, 2, -1, 1, 30.15))
sketch1.addConstraint(Sketcher.Constraint("DistanceX", 76, 2, -1, 1, 10.15))
sketch1.addConstraint(Sketcher.Constraint("DistanceY", -1, 1, 16, 2, 22.675))
pad1 = body.newObject("PartDesign::Pad", "Pad")
pad1.Profile = sketch1
pad1.Length = 6
doc.recompute()

fillet = body.newObject("PartDesign::Fillet", "Fillet")
fillet.Base = (pad1, edges_at(pad1, [(3, -341.3, 70), (3, -341.3, 0)]))
fillet.Radius = 5

doc.recompute()
